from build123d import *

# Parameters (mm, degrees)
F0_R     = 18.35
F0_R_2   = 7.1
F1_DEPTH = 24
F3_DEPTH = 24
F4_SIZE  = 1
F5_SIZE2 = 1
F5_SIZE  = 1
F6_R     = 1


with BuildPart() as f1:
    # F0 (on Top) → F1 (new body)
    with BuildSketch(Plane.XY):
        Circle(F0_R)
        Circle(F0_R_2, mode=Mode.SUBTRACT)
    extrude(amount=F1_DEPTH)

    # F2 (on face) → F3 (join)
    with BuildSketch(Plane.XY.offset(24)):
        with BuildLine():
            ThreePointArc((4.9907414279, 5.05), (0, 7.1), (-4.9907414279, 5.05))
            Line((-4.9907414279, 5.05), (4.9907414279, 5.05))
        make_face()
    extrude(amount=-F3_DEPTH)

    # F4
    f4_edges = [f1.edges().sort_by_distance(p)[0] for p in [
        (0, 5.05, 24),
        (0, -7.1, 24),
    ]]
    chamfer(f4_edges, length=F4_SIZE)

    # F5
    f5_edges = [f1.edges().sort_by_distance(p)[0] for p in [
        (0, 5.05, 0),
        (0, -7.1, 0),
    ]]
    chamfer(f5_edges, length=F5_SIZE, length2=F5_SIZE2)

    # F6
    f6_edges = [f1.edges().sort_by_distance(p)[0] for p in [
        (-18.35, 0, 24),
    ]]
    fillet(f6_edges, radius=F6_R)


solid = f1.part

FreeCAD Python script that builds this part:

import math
import FreeCAD as App
import Part
import Sketcher
Q = App.Units.Quantity


def edges_at(feature, points):
    """Names of the edges that pass closest to the given points."""
    edges = feature.Shape.Edges
    near = lambda p: min(range(len(edges)), key=lambda i: edges[i].distToShape(Part.Vertex(*p))[0])
    return sorted({f"Edge{near(p) + 1}" for p in points})

doc = App.newDocument("Part")
body = doc.addObject("PartDesign::Body", "Body")

sketch1 = body.newObject("Sketcher::SketchObject", "Sketch")
sketch1.AttachmentSupport = (doc.getObject("XY_Plane"), [""])
sketch1.MapMode = "FlatFace"
sketch1.addGeometry([
    Part.Circle(App.Vector(0, 0, 0), App.Vector(0, 0, 1), 18),
    Part.Circle(App.Vector(0, 0, 0), App.Vector(0, 0, 1), 7),
], False)
sketch1.addConstraint([
    Sketcher.Constraint("Coincident", 0, 3, -1, 1),
    Sketcher.Constraint("Coincident", 1, 3, -1, 1),
    Sketcher.Constraint("Diameter", 0, Q("36.7 mm")),
    Sketcher.Constraint("Diameter", 1, Q("14.2 mm")),
])
pad1 = body.newObject("PartDesign::Pad", "Pad")
pad1.Profile = sketch1
pad1.Length = 24

sketch2 = body.newObject("Sketcher::SketchObject", "Sketch001")
sketch2.AttachmentSupport = (doc.getObject("XY_Plane"), [""])
sketch2.MapMode = "FlatFace"
sketch2.AttachmentOffset = App.Placement(App.Vector(0, 0, 24), App.Rotation())
sketch2.addGeometry([
    Part.ArcOfCircle(Part.Circle(App.Vector(0, 0, 0), App.Vector(0, 0, 1), 7), math.radians(45), math.radians(135)),
    Part.LineSegment(App.Vector(-5, 5, 0), App.Vector(5, 5, 0)),
], False)
sketch2.addConstraint([
    Sketcher.Constraint("Coincident", 0, 1, 1, 2),
    Sketcher.Constraint("Coincident", 1, 1, 0, 2),
    Sketcher.Constraint("Horizontal", 1),
    Sketcher.Constraint("Coincident", 0, 3, -1, 1),
    Sketcher.Constraint("Radius", 0, Q("7.1 mm")),
    Sketcher.Constraint("DistanceY", -1, 1, 0, 1, Q("5.05 mm")),
])
pad2 = body.newObject("PartDesign::Pad", "Pad001")
pad2.Profile = sketch2
pad2.Length = 24
pad2.Reversed = True
doc.recompute()

chamfer = body.newObject("PartDesign::Chamfer", "Chamfer")
chamfer.Base = (pad2, edges_at(pad2, [(0, 5.05, 24), (0, -7.1, 24)]))
chamfer.Size = 1
doc.recompute()

chamfer2 = body.newObject("PartDesign::Chamfer", "Chamfer001")
chamfer2.Base = (chamfer, edges_at(chamfer, [(0, 5.05, 0), (0, -7.1, 0)]))
chamfer2.ChamferType = "Two distances"
chamfer2.Size = 1
chamfer2.Size2 = 1
doc.recompute()

fillet = body.newObject("PartDesign::Fillet", "Fillet")
fillet.Base = (chamfer2, edges_at(chamfer2, [(-18.35, 0, 24)]))
fillet.Radius = 1

doc.recompute()
